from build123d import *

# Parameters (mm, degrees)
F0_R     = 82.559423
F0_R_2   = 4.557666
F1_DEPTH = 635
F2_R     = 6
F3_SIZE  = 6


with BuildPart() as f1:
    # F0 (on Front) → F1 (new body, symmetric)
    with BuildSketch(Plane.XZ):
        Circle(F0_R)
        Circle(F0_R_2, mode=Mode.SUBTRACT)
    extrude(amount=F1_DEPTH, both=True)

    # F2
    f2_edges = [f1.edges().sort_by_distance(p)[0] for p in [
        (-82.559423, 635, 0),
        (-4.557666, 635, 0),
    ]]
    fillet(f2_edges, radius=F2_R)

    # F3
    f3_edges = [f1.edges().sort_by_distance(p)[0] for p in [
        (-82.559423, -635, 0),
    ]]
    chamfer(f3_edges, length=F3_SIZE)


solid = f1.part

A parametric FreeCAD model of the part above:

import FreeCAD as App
import Part
import Sketcher
from FreeCAD import Vector


def edges_at(feature, points):
    """Names of the edges that pass closest to the given points."""
    edges = feature.Shape.Edges
    near = lambda p: min(range(len(edges)), key=lambda i: edges[i].distToShape(Part.Vertex(*p))[0])
    return sorted({f"Edge{near(p) + 1}" for p in points})

doc = App.newDocument("Part")
body = doc.addObject("PartDesign::Body", "Body")

sketch1 = body.newObject("Sketcher::SketchObject", "Sketch")
sketch1.AttachmentSupport = (doc.getObject("XZ_Plane"), [""])
sketch1.MapMode = "FlatFace"
sketch1.addGeometry(Part.Circle(Vector(0, 0, 0), Vector(0, 0, 1), 82.6), False)
sketch1.addGeometry(Part.Circle(Vector(0, 0, 0), Vector(0, 0, 1), 4.6), False)
sketch1.addConstraint(Sketcher.Constraint("Coincident", 0, 3, -1, 1))
sketch1.addConstraint(Sketcher.Constraint("Coincident", 1, 3, -1, 1))
sketch1.addConstraint(Sketcher.Constraint("Diameter", 0, 165.118846))
sketch1.addConstraint(Sketcher.Constraint("Diameter", 1, 9.115332))
pad1 = body.newObject("PartDesign::Pad", "Pad")
pad1.Profile = sketch1
pad1.Length = 1270
pad1.Midplane = True
doc.recompute()

fillet = body.newObject("PartDesign::Fillet", "Fillet")
fillet.Base = (pad1, edges_at(pad1, [(-82.559, 635, 0), (-4.558, 635, 0)]))
fillet.Radius = 6
doc.recompute()

chamfer = body.newObject("PartDesign::Chamfer", "Chamfer")
chamfer.Base = (fillet, edges_at(fillet, [(-82.559, -635, 0)]))
chamfer.Size = 6

doc.recompute()
